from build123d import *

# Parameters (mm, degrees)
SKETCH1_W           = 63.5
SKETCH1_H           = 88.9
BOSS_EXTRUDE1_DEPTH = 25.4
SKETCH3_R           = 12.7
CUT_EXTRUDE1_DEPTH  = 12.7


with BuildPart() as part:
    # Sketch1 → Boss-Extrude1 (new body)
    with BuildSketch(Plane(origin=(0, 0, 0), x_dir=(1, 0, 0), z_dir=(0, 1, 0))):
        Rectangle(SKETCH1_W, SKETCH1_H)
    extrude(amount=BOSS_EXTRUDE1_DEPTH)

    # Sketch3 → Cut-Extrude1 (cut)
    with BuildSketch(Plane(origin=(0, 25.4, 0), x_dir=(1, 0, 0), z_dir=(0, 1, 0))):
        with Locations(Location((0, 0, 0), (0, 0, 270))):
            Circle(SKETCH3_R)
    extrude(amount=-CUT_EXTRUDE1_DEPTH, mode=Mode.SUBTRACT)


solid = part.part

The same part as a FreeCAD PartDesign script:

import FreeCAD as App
import Part
import Sketcher

V = App.Vector
Q = App.Units.Quantity

doc = App.newDocument("Part")
body = doc.addObject("PartDesign::Body", "Body")

# Sketch on XZ plane
sketch1 = body.newObject("Sketcher::SketchObject", "Sketch")
sketch1.AttachmentSupport = (doc.getObject("XZ_Plane"), [""])
sketch1.MapMode = "FlatFace"
sketch1.addGeometry([
    Part.LineSegment(V(-32, -44, 0), V(-32, 44, 0)),
    Part.LineSegment(V(-32, 44, 0), V(32, 44, 0)),
    Part.LineSegment(V(32, 44, 0), V(32, -44, 0)),
    Part.LineSegment(V(32, -44, 0), V(-32, -44, 0)),
], False)
sketch1.addConstraint([
    Sketcher.Constraint("Coincident", 0, 2, 1, 1),
    Sketcher.Constraint("Coincident", 1, 2, 2, 1),
    Sketcher.Constraint("Coincident", 2, 2, 3, 1),
    Sketcher.Constraint("Coincident", 3, 2, 0, 1),
    Sketcher.Constraint("Vertical", 0),
    Sketcher.Constraint("Horizontal", 1),
    Sketcher.Constraint("Vertical", 2),
    Sketcher.Constraint("Horizontal", 3),
    Sketcher.Constraint("Symmetric", 0, 2, 2, 2, -1, 1),
    Sketcher.Constraint("DistanceX", 1, 1, 1, 2, Q("2.5 in")),
    Sketcher.Constraint("DistanceY", 0, 1, 0, 2, Q("3.5 in")),
])
pad1 = body.newObject("PartDesign::Pad", "Pad")
pad1.Profile = sketch1
pad1.Length = Q("1 in")
pad1.Reversed = True

# Sketch on XZ plane
sketch2 = body.newObject("Sketcher::SketchObject", "Sketch001")
sketch2.AttachmentSupport = (doc.getObject("XZ_Plane"), [""])
sketch2.MapMode = "FlatFace"
sketch2.AttachmentOffset = App.Placement(V(0, 0, -1 * 25.4), App.Rotation())
sketch2.addGeometry(Part.Circle(V(0, 0, 0), V(0, 0, 1), 13), False)
sketch2.addConstraint([
    Sketcher.Constraint("Coincident", 0, 3, -1, 1),
    Sketcher.Constraint("Diameter", 0, Q("1 in")),
])
pocket1 = body.newObject("PartDesign::Pocket", "Pocket")
pocket1.Profile = sketch2
pocket1.Length = Q("0.5 in")
pocket1.Reversed = True

doc.recompute()
